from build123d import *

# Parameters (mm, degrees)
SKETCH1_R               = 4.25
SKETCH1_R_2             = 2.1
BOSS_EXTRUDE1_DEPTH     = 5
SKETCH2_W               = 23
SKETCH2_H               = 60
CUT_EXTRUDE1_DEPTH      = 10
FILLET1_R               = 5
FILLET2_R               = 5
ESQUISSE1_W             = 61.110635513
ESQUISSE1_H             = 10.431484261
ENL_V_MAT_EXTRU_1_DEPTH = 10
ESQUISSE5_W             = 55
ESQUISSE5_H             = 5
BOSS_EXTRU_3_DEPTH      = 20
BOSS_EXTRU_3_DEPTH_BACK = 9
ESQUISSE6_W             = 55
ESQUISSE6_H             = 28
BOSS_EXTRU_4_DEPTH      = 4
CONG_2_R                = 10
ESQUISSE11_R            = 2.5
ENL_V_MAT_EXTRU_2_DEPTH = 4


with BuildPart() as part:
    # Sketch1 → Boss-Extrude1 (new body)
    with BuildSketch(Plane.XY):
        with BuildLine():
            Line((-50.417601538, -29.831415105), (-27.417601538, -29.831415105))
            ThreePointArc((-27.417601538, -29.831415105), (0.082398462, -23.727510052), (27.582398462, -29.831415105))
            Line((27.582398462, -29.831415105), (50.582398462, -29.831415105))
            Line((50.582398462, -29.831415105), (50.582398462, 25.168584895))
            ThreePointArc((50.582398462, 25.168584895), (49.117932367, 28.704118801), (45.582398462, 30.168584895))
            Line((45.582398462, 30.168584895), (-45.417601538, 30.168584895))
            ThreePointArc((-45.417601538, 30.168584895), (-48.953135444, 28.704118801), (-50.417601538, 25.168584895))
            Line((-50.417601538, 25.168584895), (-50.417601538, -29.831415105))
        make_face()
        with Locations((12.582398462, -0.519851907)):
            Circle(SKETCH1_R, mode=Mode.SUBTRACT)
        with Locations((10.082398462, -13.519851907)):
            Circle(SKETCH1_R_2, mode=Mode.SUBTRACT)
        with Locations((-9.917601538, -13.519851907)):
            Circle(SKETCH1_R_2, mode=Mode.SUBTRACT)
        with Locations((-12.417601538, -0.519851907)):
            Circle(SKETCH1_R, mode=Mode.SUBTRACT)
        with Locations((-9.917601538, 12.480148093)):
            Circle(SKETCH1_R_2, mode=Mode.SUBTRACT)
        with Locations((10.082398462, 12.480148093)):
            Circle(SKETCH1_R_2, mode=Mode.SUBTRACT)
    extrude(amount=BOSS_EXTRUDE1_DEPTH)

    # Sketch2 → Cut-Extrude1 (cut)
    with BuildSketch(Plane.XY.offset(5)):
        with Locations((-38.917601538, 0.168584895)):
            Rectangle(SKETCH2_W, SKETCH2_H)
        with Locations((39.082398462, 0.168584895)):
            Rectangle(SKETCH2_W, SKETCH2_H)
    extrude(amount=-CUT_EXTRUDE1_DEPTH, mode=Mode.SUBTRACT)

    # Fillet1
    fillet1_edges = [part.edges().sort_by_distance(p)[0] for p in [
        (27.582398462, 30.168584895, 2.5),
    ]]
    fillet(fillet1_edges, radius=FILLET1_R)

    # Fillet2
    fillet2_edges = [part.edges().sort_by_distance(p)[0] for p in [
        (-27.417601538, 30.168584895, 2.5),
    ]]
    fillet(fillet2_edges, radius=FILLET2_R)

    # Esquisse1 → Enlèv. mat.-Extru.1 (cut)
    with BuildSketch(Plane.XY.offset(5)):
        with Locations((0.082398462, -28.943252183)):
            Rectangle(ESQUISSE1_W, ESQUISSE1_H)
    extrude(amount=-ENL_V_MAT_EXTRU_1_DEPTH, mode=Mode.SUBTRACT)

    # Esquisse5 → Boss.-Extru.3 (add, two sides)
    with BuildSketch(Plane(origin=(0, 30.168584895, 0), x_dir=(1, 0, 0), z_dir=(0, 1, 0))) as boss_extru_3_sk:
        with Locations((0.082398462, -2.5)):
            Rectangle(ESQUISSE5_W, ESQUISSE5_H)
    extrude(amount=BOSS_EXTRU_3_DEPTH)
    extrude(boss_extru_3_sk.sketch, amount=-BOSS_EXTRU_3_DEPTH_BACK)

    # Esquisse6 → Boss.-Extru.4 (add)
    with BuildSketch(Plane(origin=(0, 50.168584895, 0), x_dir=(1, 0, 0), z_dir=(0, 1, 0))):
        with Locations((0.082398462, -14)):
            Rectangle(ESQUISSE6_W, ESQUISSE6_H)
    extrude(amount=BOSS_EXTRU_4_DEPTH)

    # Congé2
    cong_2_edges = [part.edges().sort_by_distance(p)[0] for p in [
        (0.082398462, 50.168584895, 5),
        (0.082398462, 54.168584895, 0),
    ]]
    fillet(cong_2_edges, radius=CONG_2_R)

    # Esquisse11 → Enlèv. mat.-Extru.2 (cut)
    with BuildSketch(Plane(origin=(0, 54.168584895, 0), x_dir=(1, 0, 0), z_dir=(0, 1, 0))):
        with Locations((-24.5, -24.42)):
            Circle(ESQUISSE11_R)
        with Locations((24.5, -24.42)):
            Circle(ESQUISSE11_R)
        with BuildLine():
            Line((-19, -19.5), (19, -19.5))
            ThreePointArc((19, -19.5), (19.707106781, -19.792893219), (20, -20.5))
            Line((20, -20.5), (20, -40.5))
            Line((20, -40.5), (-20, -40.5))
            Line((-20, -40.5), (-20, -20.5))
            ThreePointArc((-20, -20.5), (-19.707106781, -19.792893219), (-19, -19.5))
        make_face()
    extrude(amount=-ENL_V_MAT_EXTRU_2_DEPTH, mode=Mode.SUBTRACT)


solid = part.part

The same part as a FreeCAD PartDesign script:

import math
import FreeCAD as App
import Part
import Sketcher
from FreeCAD import Vector
Q = App.Units.Quantity


def edges_at(feature, points):
    """Names of the edges that pass closest to the given points."""
    edges = feature.Shape.Edges
    near = lambda p: min(range(len(edges)), key=lambda i: edges[i].distToShape(Part.Vertex(*p))[0])
    return sorted({f"Edge{near(p) + 1}" for p in points})


def add_polygon(sketch, points):
    """Adds a closed chain of lines whose ends are joined by coincident constraints."""
    first, n = sketch.GeometryCount, len(points)
    for a, b in zip(points, points[1:] + points[:1]):
        sketch.addGeometry(Part.LineSegment(App.Vector(*a, 0), App.Vector(*b, 0)), False)
    for i in range(n):
        sketch.addConstraint(Sketcher.Constraint("Coincident", first + i, 2, first + (i + 1) % n, 1))

doc = App.newDocument("Part")
body = doc.addObject("PartDesign::Body", "Body")

# Sketch on XY plane
sketch1 = doc.addObject("Sketcher::SketchObject", "Sketch")
body.addObject(sketch1)
sketch1.AttachmentSupport = (doc.XY_Plane, [""])
sketch1.MapMode = "FlatFace"
sketch1.addGeometry([
    Part.LineSegment(Vector(-50.417602, -29.831415, 0), Vector(-27.417602, -29.831415, 0)),  # 0
    Part.ArcOfCircle(Part.Circle(Vector(0.082398, -88.72751, 0), Vector(0, 0, 1), 65), math.radians(64.971001), math.radians(115.028999)),  # 1
    Part.LineSegment(Vector(27.582398, -29.831415, 0), Vector(50.582398, -29.831415, 0)),  # 2
    Part.LineSegment(Vector(50.582398, -29.831415, 0), Vector(50.582398, 25.168585, 0)),  # 3
    Part.ArcOfCircle(Part.Circle(Vector(45.582398, 25.168585, 0), Vector(0, 0, 1), 5), math.radians(0), math.radians(90)),  # 4
    Part.LineSegment(Vector(45.582398, 30.168585, 0), Vector(-45.417602, 30.168585, 0)),  # 5
    Part.ArcOfCircle(Part.Circle(Vector(-45.417602, 25.168585, 0), Vector(0, 0, 1), 5), math.radians(90), math.radians(180)),  # 6
    Part.LineSegment(Vector(-50.417602, 25.168585, 0), Vector(-50.417602, -29.831415, 0)),  # 7
    Part.Circle(Vector(-9.917602, -13.519852, 0), Vector(0, 0, 1), 2.1),  # 8
    Part.Circle(Vector(10.082398, -13.519852, 0), Vector(0, 0, 1), 2.1),  # 9
    Part.Circle(Vector(-12.417602, -0.519852, 0), Vector(0, 0, 1), 4.25),  # 10
    Part.Circle(Vector(-9.917602, 12.480148, 0), Vector(0, 0, 1), 2.1),  # 11
    Part.Circle(Vector(12.582398, -0.519852, 0), Vector(0, 0, 1), 4.25),  # 12
    Part.Circle(Vector(10.082398, 12.480148, 0), Vector(0, 0, 1), 2.1),  # 13
], False)
sketch1.addConstraint([
    Sketcher.Constraint("Coincident", 0, 2, 1, 2),
    Sketcher.Constraint("Coincident", 1, 1, 2, 1),
    Sketcher.Constraint("Coincident", 2, 2, 3, 1),
    Sketcher.Constraint("Tangent", 3, 2, 4, 1),
    Sketcher.Constraint("Tangent", 4, 2, 5, 1),
    Sketcher.Constraint("Tangent", 5, 2, 6, 1),
    Sketcher.Constraint("Tangent", 6, 2, 7, 1),
    Sketcher.Constraint("Coincident", 7, 2, 0, 1),
    Sketcher.Constraint("Horizontal", 0),
    Sketcher.Constraint("Horizontal", 2),
    Sketcher.Constraint("Vertical", 3),
    Sketcher.Constraint("Horizontal", 5),
    Sketcher.Constraint("Vertical", 7),
    Sketcher.Constraint("Equal", 4, 6),
    Sketcher.Constraint("Equal", 8, 9),
    Sketcher.Constraint("Equal", 9, 11),
    Sketcher.Constraint("Equal", 10, 12),
    Sketcher.Constraint("Equal", 11, 13),
    Sketcher.Constraint("Horizontal", 8, 3, 9, 3),
    Sketcher.Constraint("Horizontal", 10, 3, 12, 3),
    Sketcher.Constraint("Horizontal", 11, 3, 13, 3),
    Sketcher.Constraint("Horizontal", 0, 2, 1, 1),
    Sketcher.Constraint("Vertical", 8, 3, 11, 3),
    Sketcher.Constraint("Vertical", 9, 3, 13, 3),
    Sketcher.Constraint("Equal", 0, 2),
    Sketcher.Constraint("Radius", 1, Q("65 mm")),
    Sketcher.Constraint("Radius", 4, Q("5 mm")),
    Sketcher.Constraint("Diameter", 8, Q("4.2 mm")),
    Sketcher.Constraint("Diameter", 10, Q("8.5 mm")),
    Sketcher.Constraint("DistanceX", 0, 1, 0, 2, Q("23 mm")),
    Sketcher.Constraint("DistanceX", 5, 2, 5, 1, Q("91 mm")),
    Sketcher.Constraint("DistanceY", 3, 1, 3, 2, Q("55 mm")),
    Sketcher.Constraint("DistanceX", 8, 3, 1, 3, Q("10 mm")),
    Sketcher.Constraint("DistanceX", 8, 3, 9, 3, Q("20 mm")),
    Sketcher.Constraint("DistanceY", 8, 3, 10, 3, Q("13 mm")),
    Sketcher.Constraint("DistanceX", 6, 3, 10, 3, Q("33 mm")),
    Sketcher.Constraint("DistanceY", 10, 3, 11, 3, Q("13 mm")),
    Sketcher.Constraint("DistanceX", 10, 3, 12, 3, Q("25 mm")),
    Sketcher.Constraint("DistanceX", -1, 1, 1, 3, Q("0.082398 mm")),
    Sketcher.Constraint("DistanceY", 1, 3, -1, 1, Q("88.72751 mm")),
    Sketcher.Constraint("DistanceY", 8, 3, -1, 1, Q("13.519852 mm")),
])
pad1 = doc.addObject("PartDesign::Pad", "Pad")
body.addObject(pad1)
pad1.Profile = sketch1
pad1.Length = 5

# Sketch on XY plane
sketch2 = doc.addObject("Sketcher::SketchObject", "Sketch001")
body.addObject(sketch2)
sketch2.AttachmentSupport = (doc.XY_Plane, [""])
sketch2.MapMode = "FlatFace"
sketch2.AttachmentOffset = App.Placement(Vector(0, 0, 5), App.Rotation())
add_polygon(sketch2, [(-50.417602, 30.168585), (-50.417602, -29.831415), (-27.417602, -29.831415), (-27.417602, 30.168585)])  # lines 0-3
add_polygon(sketch2, [(27.582398, 30.168585), (27.582398, -29.831415), (50.582398, -29.831415), (50.582398, 30.168585)])  # lines 4-7
sketch2.addConstraint([
    Sketcher.Constraint("Vertical", 0),
    Sketcher.Constraint("Horizontal", 1),
    Sketcher.Constraint("Vertical", 2),
    Sketcher.Constraint("Horizontal", 3),
    Sketcher.Constraint("Vertical", 4),
    Sketcher.Constraint("Horizontal", 5),
    Sketcher.Constraint("Vertical", 6),
    Sketcher.Constraint("Horizontal", 7),
    Sketcher.Constraint("Horizontal", 1, 2, 4, 2),
    Sketcher.Constraint("Horizontal", 3, 2, 6, 2),
    Sketcher.Constraint("Equal", 3, 5),
    Sketcher.Constraint("DistanceX", 1, 1, 1, 2, Q("23 mm")),
    Sketcher.Constraint("DistanceY", 0, 2, 0, 1, Q("60 mm")),
    Sketcher.Constraint("DistanceX", 1, 2, 4, 2, Q("55 mm")),
    Sketcher.Constraint("DistanceX", 0, 2, -1, 1, Q("50.417602 mm")),
    Sketcher.Constraint("DistanceY", 0, 2, -1, 1, Q("29.831415 mm")),
])
pocket1 = doc.addObject("PartDesign::Pocket", "Pocket")
body.addObject(pocket1)
pocket1.Profile = sketch2
pocket1.Length = 10
doc.recompute()

fillet = doc.addObject("PartDesign::Fillet", "Fillet")
body.addObject(fillet)
fillet.Base = (pocket1, edges_at(pocket1, [(27.582, 30.169, 2.5)]))
fillet.Radius = 5
doc.recompute()

fillet2 = doc.addObject("PartDesign::Fillet", "Fillet001")
body.addObject(fillet2)
fillet2.Base = (fillet, edges_at(fillet, [(-27.418, 30.169, 2.5)]))
fillet2.Radius = 5

# Sketch on XY plane
sketch3 = doc.addObject("Sketcher::SketchObject", "Sketch002")
body.addObject(sketch3)
sketch3.AttachmentSupport = (doc.XY_Plane, [""])
sketch3.MapMode = "FlatFace"
sketch3.AttachmentOffset = App.Placement(Vector(0, 0, 5), App.Rotation())
add_polygon(sketch3, [(-30.472919, -23.72751), (-30.472919, -34.158994), (30.637716, -34.158994), (30.637716, -23.72751)])  # lines 0-3
sketch3.addConstraint([
    Sketcher.Constraint("Vertical", 0),
    Sketcher.Constraint("Horizontal", 1),
    Sketcher.Constraint("Vertical", 2),
    Sketcher.Constraint("Horizontal", 3),
    Sketcher.Constraint("DistanceX", 1, 1, 1, 2, Q("61.110636 mm")),
    Sketcher.Constraint("DistanceY", 0, 2, 0, 1, Q("10.431484 mm")),
    Sketcher.Constraint("DistanceX", 0, 2, -1, 1, Q("30.472919 mm")),
    Sketcher.Constraint("DistanceY", 2, 2, -1, 1, Q("23.72751 mm")),
])
pocket2 = doc.addObject("PartDesign::Pocket", "Pocket001")
body.addObject(pocket2)
pocket2.Profile = sketch3
pocket2.Length = 10

# Sketch on XZ plane
sketch4 = doc.addObject("Sketcher::SketchObject", "Sketch003")
body.addObject(sketch4)
sketch4.AttachmentSupport = (doc.XZ_Plane, [""])
sketch4.MapMode = "FlatFace"
sketch4.AttachmentOffset = App.Placement(Vector(0, 0, -30.168585), App.Rotation())
add_polygon(sketch4, [(-27.417602, 0), (-27.417602, 5), (27.582398, 5), (27.582398, 0)])  # lines 0-3
sketch4.addConstraint([
    Sketcher.Constraint("Vertical", 0),
    Sketcher.Constraint("Horizontal", 1),
    Sketcher.Constraint("Vertical", 2),
    Sketcher.Constraint("Horizontal", 3),
    Sketcher.Constraint("PointOnObject", 2, 2, -1),
    Sketcher.Constraint("DistanceX", 1, 1, 1, 2, Q("55 mm")),
    Sketcher.Constraint("DistanceY", 0, 1, 0, 2, Q("5 mm")),
    Sketcher.Constraint("DistanceX", 0, 2, -1, 1, Q("27.417602 mm")),
])
pad2 = doc.addObject("PartDesign::Pad", "Pad001")
body.addObject(pad2)
pad2.Profile = sketch4
pad2.Type = "TwoLengths"
pad2.Length = 20
pad2.Length2 = 9
pad2.Reversed = True

# Sketch on XZ plane
sketch5 = doc.addObject("Sketcher::SketchObject", "Sketch004")
body.addObject(sketch5)
sketch5.AttachmentSupport = (doc.XZ_Plane, [""])
sketch5.MapMode = "FlatFace"
sketch5.AttachmentOffset = App.Placement(Vector(0, 0, -50.168585), App.Rotation())
add_polygon(sketch5, [(-27.417602, 0), (-27.417602, 28), (27.582398, 28), (27.582398, 0)])  # lines 0-3
sketch5.addConstraint([
    Sketcher.Constraint("Vertical", 0),
    Sketcher.Constraint("Horizontal", 1),
    Sketcher.Constraint("Vertical", 2),
    Sketcher.Constraint("Horizontal", 3),
    Sketcher.Constraint("PointOnObject", 2, 2, -1),
    Sketcher.Constraint("DistanceX", 1, 1, 1, 2, Q("55 mm")),
    Sketcher.Constraint("DistanceY", 0, 1, 0, 2, Q("28 mm")),
    Sketcher.Constraint("DistanceX", 0, 2, -1, 1, Q("27.417602 mm")),
])
pad3 = doc.addObject("PartDesign::Pad", "Pad002")
body.addObject(pad3)
pad3.Profile = sketch5
pad3.Length = 4
pad3.Reversed = True
doc.recompute()

fillet3 = doc.addObject("PartDesign::Fillet", "Fillet002")
body.addObject(fillet3)
fillet3.Base = (pad3, edges_at(pad3, [(0.082, 50.169, 5), (0.082, 54.169, 0)]))
fillet3.Radius = 10

# Sketch on XZ plane
sketch6 = doc.addObject("Sketcher::SketchObject", "Sketch005")
body.addObject(sketch6)
sketch6.AttachmentSupport = (doc.XZ_Plane, [""])
sketch6.MapMode = "FlatFace"
sketch6.AttachmentOffset = App.Placement(Vector(0, 0, -54.168585), App.Rotation())
sketch6.addGeometry([
    Part.Circle(Vector(-24.5, 24.42, 0), Vector(0, 0, 1), 2.5),  # 0
    Part.Circle(Vector(24.5, 24.42, 0), Vector(0, 0, 1), 2.5),  # 1
    Part.LineSegment(Vector(19, 19.5, 0), Vector(-19, 19.5, 0)),  # 2
    Part.ArcOfCircle(Part.Circle(Vector(-19, 20.5, 0), Vector(0, 0, 1), 1), math.radians(-180), math.radians(-90)),  # 3
    Part.LineSegment(Vector(-20, 20.5, 0), Vector(-20, 40.5, 0)),  # 4
    Part.LineSegment(Vector(-20, 40.5, 0), Vector(20, 40.5, 0)),  # 5
    Part.LineSegment(Vector(20, 40.5, 0), Vector(20, 20.5, 0)),  # 6
    Part.ArcOfCircle(Part.Circle(Vector(19, 20.5, 0), Vector(0, 0, 1), 1), math.radians(-90), math.radians(0)),  # 7
], False)
sketch6.addConstraint([
    Sketcher.Constraint("Tangent", 2, 2, 3, 2),
    Sketcher.Constraint("Tangent", 3, 1, 4, 1),
    Sketcher.Constraint("Coincident", 4, 2, 5, 1),
    Sketcher.Constraint("Coincident", 5, 2, 6, 1),
    Sketcher.Constraint("Tangent", 6, 2, 7, 2),
    Sketcher.Constraint("Tangent", 7, 1, 2, 1),
    Sketcher.Constraint("Horizontal", 2),
    Sketcher.Constraint("Vertical", 4),
    Sketcher.Constraint("Horizontal", 5),
    Sketcher.Constraint("Vertical", 6),
    Sketcher.Constraint("Equal", 0, 1),
    Sketcher.Constraint("Equal", 3, 7),
    Sketcher.Constraint("Symmetric", 0, 3, 1, 3, -2),
    Sketcher.Constraint("Diameter", 0, Q("5 mm")),
    Sketcher.Constraint("Radius", 3, Q("1 mm")),
    Sketcher.Constraint("DistanceX", 2, 2, 2, 1, Q("38 mm")),
    Sketcher.Constraint("DistanceY", 4, 1, 4, 2, Q("20 mm")),
    Sketcher.Constraint("DistanceX", 3, 3, -1, 1, Q("19 mm")),
    Sketcher.Constraint("DistanceX", 0, 3, 1, 3, Q("49 mm")),
    Sketcher.Constraint("DistanceY", -1, 1, 3, 3, Q("20.5 mm")),
    Sketcher.Constraint("DistanceY", -1, 1, 0, 3, Q("24.42 mm")),
])
pocket3 = doc.addObject("PartDesign::Pocket", "Pocket002")
body.addObject(pocket3)
pocket3.Profile = sketch6
pocket3.Length = 4
pocket3.Reversed = True

doc.recompute()
